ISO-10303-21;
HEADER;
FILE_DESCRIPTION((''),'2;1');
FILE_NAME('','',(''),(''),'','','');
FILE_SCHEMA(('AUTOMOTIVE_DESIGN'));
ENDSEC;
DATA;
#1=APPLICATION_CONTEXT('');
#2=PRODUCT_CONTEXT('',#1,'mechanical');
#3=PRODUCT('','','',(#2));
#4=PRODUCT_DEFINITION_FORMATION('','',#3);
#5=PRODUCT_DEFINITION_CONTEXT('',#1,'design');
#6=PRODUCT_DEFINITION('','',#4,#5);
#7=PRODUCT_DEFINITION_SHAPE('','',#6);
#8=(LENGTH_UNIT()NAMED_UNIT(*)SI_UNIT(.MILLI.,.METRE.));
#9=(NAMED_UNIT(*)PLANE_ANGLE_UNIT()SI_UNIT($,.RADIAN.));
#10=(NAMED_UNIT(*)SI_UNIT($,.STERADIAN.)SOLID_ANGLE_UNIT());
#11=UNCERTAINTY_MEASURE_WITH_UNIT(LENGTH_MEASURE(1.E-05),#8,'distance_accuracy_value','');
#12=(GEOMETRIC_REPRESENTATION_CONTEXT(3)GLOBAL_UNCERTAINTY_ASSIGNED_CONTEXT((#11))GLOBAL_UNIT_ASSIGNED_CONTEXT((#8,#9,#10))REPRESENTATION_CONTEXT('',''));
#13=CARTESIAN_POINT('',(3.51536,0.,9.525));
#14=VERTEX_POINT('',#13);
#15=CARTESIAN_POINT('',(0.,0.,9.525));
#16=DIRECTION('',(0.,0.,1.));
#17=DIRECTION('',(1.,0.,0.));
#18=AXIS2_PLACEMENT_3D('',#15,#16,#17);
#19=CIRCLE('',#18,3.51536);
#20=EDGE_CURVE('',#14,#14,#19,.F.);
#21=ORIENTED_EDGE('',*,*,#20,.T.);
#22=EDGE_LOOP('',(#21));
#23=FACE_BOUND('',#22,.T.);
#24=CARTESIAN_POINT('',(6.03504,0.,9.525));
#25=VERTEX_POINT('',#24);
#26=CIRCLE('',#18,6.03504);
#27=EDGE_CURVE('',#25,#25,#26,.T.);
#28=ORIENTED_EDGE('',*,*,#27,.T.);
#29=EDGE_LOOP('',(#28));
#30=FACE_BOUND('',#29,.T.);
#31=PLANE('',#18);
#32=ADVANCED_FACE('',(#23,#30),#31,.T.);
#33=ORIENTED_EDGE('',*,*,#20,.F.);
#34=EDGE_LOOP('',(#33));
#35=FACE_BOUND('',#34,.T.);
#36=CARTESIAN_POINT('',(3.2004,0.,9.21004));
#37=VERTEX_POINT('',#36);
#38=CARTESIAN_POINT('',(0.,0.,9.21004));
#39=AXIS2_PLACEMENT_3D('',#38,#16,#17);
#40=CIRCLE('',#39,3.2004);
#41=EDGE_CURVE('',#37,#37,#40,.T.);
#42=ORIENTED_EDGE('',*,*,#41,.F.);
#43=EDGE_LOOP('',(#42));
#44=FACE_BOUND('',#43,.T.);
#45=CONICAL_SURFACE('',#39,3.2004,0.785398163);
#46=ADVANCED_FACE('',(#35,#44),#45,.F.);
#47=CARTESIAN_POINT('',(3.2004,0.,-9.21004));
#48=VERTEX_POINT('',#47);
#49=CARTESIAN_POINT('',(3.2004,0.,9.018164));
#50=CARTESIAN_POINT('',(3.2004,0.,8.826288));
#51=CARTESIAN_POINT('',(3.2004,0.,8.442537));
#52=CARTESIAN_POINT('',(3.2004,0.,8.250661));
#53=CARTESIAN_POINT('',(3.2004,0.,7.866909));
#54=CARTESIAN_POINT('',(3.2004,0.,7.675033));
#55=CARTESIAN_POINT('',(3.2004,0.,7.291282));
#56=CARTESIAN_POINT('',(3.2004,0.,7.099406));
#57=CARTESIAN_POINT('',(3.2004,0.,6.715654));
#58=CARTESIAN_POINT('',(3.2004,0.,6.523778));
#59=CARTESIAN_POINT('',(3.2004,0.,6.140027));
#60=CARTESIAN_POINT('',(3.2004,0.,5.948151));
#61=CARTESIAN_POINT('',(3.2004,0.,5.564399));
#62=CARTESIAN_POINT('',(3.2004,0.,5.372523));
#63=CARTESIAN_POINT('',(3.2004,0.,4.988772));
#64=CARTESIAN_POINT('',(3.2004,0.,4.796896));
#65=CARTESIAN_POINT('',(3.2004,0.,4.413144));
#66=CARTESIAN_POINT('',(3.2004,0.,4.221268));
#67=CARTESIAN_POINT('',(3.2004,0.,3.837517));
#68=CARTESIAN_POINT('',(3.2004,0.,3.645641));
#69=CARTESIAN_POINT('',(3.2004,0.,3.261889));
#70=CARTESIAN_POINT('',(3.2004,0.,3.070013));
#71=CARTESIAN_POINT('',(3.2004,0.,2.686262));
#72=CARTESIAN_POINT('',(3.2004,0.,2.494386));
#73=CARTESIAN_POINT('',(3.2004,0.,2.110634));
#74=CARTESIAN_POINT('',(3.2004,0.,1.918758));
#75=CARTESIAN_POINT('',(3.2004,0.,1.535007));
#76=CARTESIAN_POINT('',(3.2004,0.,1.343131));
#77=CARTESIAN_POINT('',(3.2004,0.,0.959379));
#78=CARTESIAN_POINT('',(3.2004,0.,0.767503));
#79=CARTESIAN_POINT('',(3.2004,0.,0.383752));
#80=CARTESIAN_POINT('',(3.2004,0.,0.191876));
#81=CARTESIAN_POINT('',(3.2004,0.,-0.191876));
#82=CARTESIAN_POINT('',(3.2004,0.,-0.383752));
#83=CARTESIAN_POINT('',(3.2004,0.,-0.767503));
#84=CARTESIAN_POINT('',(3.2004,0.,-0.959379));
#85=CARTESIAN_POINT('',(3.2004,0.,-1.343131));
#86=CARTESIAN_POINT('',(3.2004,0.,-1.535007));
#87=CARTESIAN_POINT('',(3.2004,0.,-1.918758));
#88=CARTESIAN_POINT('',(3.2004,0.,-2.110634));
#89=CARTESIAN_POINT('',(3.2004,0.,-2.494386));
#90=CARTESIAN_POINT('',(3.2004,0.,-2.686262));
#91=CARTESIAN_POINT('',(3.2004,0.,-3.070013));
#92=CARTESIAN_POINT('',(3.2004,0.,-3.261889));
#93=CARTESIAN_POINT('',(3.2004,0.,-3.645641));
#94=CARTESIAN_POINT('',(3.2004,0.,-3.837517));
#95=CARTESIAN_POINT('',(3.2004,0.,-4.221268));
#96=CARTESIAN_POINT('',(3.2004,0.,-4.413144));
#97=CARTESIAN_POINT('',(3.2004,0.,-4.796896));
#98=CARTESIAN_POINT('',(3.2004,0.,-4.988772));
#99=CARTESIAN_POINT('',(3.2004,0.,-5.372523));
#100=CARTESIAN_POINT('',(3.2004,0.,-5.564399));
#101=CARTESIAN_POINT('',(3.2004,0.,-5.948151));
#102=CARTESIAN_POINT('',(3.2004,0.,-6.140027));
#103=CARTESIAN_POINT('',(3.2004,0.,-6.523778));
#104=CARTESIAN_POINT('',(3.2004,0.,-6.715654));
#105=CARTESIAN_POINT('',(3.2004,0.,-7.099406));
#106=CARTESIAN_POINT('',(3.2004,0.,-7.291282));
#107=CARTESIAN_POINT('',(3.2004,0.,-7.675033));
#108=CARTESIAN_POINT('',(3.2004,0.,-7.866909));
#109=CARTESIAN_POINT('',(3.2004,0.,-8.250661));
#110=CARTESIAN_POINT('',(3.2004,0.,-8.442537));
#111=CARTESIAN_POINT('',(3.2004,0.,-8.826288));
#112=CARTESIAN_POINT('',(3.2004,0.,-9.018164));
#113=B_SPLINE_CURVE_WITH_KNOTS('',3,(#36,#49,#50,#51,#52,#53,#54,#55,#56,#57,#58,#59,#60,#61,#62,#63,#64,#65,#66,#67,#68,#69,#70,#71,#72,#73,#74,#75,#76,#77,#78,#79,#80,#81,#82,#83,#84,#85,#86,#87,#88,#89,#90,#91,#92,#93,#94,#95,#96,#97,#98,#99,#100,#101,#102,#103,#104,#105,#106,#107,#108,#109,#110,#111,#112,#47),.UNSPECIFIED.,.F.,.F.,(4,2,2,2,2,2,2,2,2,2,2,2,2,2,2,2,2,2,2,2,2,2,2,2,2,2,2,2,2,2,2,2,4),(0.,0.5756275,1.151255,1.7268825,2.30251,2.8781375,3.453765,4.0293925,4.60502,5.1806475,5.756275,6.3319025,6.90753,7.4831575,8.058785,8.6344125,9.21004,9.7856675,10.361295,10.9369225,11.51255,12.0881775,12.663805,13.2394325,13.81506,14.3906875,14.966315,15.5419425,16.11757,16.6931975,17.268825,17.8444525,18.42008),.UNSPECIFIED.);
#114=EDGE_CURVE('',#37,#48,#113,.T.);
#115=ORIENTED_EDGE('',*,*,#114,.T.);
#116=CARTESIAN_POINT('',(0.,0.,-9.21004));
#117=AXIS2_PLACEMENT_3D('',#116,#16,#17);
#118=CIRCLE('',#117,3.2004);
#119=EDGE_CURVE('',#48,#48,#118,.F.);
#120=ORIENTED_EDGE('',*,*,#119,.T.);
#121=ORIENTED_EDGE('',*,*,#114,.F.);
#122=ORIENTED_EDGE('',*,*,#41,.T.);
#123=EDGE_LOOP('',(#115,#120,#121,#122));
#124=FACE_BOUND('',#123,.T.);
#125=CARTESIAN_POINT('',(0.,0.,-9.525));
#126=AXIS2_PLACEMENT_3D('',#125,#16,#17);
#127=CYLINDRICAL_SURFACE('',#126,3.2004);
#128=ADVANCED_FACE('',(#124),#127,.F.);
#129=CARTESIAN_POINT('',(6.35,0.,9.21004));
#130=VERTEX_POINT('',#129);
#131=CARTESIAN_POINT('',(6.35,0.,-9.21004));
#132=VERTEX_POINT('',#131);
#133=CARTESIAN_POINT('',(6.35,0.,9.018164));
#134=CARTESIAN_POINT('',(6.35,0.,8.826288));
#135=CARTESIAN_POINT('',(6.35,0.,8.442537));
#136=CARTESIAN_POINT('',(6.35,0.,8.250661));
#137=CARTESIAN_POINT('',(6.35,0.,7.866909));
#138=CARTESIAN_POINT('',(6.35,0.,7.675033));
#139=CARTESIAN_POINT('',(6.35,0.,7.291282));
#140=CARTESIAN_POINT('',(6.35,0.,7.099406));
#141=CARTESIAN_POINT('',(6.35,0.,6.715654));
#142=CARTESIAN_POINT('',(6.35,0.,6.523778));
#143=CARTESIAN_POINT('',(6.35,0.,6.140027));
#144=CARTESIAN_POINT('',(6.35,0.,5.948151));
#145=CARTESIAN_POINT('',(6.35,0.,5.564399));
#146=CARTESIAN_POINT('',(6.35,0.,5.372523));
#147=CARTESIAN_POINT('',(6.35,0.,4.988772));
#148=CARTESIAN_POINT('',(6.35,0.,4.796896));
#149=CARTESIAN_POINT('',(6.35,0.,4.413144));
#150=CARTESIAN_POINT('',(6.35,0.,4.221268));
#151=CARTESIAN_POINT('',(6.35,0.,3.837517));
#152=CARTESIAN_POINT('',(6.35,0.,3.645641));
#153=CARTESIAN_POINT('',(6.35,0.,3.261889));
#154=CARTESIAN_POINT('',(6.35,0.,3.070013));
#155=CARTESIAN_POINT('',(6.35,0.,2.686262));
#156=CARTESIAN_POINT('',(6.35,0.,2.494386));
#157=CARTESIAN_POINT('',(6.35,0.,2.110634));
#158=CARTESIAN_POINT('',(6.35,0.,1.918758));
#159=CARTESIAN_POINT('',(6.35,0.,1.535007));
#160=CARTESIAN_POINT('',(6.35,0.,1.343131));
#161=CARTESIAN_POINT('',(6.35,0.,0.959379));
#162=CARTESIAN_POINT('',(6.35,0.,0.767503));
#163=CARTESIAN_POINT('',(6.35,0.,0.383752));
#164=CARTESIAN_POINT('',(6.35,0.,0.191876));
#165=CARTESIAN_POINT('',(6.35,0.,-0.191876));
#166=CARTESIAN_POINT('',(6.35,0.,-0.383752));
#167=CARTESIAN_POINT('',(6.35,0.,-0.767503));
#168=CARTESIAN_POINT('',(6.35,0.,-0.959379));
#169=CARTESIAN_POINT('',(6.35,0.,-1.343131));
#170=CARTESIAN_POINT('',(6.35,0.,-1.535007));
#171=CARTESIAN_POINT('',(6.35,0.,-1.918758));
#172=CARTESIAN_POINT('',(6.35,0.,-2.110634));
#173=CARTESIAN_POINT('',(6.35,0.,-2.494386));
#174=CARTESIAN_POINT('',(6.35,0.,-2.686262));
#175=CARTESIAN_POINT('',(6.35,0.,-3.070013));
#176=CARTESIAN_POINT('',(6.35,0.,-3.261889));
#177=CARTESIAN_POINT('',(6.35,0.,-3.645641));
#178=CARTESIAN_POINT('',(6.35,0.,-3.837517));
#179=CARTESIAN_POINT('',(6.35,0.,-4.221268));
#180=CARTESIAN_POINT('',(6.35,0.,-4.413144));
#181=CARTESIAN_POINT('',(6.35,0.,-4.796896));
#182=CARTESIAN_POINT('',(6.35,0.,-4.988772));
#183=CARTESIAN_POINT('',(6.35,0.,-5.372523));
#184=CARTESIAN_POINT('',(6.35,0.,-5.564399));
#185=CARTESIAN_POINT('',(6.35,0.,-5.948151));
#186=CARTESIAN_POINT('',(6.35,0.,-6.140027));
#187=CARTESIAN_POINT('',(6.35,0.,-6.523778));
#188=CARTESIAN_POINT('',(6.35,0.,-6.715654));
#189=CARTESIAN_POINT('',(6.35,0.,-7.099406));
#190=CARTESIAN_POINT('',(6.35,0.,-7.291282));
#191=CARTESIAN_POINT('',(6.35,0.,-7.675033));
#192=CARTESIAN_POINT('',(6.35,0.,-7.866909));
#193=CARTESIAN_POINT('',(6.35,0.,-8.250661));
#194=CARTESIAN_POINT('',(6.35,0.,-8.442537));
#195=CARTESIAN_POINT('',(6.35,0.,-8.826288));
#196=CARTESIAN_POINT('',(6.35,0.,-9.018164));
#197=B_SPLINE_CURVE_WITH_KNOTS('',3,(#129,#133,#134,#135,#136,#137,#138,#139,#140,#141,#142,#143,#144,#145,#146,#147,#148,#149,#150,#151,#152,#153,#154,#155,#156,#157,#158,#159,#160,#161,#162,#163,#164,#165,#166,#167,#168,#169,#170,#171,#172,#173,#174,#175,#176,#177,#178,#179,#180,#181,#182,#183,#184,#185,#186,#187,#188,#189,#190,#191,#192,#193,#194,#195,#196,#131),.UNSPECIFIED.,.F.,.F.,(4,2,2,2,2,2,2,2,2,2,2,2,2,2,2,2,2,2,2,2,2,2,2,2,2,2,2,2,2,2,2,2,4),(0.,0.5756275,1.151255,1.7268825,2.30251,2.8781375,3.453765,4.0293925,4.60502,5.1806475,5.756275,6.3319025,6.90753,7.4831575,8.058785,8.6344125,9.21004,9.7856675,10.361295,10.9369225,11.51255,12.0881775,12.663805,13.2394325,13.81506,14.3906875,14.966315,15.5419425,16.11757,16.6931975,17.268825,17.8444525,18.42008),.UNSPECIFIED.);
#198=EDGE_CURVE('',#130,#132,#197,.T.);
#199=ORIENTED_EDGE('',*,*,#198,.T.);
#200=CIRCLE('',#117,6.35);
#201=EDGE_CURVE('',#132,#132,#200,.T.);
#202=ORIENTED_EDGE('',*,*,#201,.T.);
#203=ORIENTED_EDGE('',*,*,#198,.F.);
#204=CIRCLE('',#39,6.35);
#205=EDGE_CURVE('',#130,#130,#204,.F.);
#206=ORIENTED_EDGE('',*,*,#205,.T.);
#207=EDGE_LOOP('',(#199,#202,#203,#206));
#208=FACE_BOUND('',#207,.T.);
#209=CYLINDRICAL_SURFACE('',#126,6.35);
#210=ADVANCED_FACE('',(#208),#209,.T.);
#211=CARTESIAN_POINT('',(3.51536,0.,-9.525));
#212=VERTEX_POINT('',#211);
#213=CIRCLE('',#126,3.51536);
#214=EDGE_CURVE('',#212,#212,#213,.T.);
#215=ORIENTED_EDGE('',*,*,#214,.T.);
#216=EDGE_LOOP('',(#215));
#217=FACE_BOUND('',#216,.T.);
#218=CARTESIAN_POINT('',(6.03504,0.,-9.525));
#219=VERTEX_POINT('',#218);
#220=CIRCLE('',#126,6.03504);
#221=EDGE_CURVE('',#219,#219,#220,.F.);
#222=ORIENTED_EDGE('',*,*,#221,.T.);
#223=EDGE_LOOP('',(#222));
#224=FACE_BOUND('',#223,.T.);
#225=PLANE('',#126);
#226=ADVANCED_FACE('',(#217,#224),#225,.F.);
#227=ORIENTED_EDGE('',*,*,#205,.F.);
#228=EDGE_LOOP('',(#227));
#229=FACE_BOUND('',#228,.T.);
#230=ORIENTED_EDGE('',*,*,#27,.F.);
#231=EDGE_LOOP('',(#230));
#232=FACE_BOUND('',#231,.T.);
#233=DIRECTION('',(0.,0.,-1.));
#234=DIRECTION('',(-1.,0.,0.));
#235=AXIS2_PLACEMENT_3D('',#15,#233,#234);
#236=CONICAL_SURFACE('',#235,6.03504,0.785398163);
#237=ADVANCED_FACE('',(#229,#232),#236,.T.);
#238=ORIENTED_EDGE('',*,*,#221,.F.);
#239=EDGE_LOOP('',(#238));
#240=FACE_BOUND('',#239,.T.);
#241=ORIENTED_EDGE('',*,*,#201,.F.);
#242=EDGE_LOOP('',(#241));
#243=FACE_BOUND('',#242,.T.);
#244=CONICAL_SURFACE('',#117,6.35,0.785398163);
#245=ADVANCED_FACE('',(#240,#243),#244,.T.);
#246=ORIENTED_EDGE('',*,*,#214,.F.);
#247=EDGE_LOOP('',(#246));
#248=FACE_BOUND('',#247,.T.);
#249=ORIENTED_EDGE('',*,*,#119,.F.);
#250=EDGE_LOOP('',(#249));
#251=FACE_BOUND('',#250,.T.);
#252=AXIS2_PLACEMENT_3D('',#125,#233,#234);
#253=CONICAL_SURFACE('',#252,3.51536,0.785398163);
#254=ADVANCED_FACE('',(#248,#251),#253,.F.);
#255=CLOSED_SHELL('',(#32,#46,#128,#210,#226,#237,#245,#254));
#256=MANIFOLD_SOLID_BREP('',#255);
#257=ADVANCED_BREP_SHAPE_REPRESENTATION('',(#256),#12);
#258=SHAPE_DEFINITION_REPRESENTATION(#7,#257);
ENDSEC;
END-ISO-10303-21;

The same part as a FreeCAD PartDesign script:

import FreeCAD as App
import Part
import Sketcher
from FreeCAD import Vector
Q = App.Units.Quantity


def edges_at(feature, points):
    """Names of the edges that pass closest to the given points."""
    edges = feature.Shape.Edges
    near = lambda p: min(range(len(edges)), key=lambda i: edges[i].distToShape(Part.Vertex(*p))[0])
    return sorted({f"Edge{near(p) + 1}" for p in points})

doc = App.newDocument("Part")
params = doc.addObject("Spreadsheet::Sheet", "Params")
for row, (alias, value) in enumerate([
    ("sketch1_diameter", "0.5 in"),
    ("sketch1_diameter2", "0.252 in"),
    ("pad1_length", "0.375 in"),
    ("pad1_length2", "0.375 in"),
    ("chamfer_size", "0.0124 in"),
], start=1):
    params.set(f"A{row}", alias)
    params.set(f"B{row}", "=" + value)
    params.setAlias(f"B{row}", alias)

body = doc.addObject("PartDesign::Body", "Body")

# Sketch on XY plane
sketch1 = doc.addObject("Sketcher::SketchObject", "Sketch")
body.addObject(sketch1)
sketch1.AttachmentSupport = (doc.XY_Plane, [""])
sketch1.MapMode = "FlatFace"
sketch1.addGeometry([
    Part.Circle(Vector(0, 0, 0), Vector(0, 0, 1), 6.35),
    Part.Circle(Vector(0, 0, 0), Vector(0, 0, 1), 3.2004),
], False)
sketch1.addConstraint([
    Sketcher.Constraint("Coincident", 0, 3, -1, 1),
    Sketcher.Constraint("Coincident", 1, 3, -1, 1),
    Sketcher.Constraint("Diameter", 0, Q("0.5 in")),
    Sketcher.Constraint("Diameter", 1, Q("0.252 in")),
])
sketch1.setExpression("Constraints[2]", "Params.sketch1_diameter")
sketch1.setExpression("Constraints[3]", "Params.sketch1_diameter2")
pad1 = doc.addObject("PartDesign::Pad", "Pad")
body.addObject(pad1)
pad1.Profile = sketch1
pad1.Type = "TwoLengths"
pad1.setExpression("Length", "Params.pad1_length")
pad1.setExpression("Length2", "Params.pad1_length2")
doc.recompute()

chamfer = doc.addObject("PartDesign::Chamfer", "Chamfer")
body.addObject(chamfer)
chamfer.Base = (pad1, edges_at(pad1, [
    (-6.35, 0, -9.525),
    (-3.2, 0, -9.525),
    (-6.35, 0, 9.525),
    (-3.2, 0, 9.525),
]))
chamfer.setExpression("Size", "Params.chamfer_size")

doc.recompute()
